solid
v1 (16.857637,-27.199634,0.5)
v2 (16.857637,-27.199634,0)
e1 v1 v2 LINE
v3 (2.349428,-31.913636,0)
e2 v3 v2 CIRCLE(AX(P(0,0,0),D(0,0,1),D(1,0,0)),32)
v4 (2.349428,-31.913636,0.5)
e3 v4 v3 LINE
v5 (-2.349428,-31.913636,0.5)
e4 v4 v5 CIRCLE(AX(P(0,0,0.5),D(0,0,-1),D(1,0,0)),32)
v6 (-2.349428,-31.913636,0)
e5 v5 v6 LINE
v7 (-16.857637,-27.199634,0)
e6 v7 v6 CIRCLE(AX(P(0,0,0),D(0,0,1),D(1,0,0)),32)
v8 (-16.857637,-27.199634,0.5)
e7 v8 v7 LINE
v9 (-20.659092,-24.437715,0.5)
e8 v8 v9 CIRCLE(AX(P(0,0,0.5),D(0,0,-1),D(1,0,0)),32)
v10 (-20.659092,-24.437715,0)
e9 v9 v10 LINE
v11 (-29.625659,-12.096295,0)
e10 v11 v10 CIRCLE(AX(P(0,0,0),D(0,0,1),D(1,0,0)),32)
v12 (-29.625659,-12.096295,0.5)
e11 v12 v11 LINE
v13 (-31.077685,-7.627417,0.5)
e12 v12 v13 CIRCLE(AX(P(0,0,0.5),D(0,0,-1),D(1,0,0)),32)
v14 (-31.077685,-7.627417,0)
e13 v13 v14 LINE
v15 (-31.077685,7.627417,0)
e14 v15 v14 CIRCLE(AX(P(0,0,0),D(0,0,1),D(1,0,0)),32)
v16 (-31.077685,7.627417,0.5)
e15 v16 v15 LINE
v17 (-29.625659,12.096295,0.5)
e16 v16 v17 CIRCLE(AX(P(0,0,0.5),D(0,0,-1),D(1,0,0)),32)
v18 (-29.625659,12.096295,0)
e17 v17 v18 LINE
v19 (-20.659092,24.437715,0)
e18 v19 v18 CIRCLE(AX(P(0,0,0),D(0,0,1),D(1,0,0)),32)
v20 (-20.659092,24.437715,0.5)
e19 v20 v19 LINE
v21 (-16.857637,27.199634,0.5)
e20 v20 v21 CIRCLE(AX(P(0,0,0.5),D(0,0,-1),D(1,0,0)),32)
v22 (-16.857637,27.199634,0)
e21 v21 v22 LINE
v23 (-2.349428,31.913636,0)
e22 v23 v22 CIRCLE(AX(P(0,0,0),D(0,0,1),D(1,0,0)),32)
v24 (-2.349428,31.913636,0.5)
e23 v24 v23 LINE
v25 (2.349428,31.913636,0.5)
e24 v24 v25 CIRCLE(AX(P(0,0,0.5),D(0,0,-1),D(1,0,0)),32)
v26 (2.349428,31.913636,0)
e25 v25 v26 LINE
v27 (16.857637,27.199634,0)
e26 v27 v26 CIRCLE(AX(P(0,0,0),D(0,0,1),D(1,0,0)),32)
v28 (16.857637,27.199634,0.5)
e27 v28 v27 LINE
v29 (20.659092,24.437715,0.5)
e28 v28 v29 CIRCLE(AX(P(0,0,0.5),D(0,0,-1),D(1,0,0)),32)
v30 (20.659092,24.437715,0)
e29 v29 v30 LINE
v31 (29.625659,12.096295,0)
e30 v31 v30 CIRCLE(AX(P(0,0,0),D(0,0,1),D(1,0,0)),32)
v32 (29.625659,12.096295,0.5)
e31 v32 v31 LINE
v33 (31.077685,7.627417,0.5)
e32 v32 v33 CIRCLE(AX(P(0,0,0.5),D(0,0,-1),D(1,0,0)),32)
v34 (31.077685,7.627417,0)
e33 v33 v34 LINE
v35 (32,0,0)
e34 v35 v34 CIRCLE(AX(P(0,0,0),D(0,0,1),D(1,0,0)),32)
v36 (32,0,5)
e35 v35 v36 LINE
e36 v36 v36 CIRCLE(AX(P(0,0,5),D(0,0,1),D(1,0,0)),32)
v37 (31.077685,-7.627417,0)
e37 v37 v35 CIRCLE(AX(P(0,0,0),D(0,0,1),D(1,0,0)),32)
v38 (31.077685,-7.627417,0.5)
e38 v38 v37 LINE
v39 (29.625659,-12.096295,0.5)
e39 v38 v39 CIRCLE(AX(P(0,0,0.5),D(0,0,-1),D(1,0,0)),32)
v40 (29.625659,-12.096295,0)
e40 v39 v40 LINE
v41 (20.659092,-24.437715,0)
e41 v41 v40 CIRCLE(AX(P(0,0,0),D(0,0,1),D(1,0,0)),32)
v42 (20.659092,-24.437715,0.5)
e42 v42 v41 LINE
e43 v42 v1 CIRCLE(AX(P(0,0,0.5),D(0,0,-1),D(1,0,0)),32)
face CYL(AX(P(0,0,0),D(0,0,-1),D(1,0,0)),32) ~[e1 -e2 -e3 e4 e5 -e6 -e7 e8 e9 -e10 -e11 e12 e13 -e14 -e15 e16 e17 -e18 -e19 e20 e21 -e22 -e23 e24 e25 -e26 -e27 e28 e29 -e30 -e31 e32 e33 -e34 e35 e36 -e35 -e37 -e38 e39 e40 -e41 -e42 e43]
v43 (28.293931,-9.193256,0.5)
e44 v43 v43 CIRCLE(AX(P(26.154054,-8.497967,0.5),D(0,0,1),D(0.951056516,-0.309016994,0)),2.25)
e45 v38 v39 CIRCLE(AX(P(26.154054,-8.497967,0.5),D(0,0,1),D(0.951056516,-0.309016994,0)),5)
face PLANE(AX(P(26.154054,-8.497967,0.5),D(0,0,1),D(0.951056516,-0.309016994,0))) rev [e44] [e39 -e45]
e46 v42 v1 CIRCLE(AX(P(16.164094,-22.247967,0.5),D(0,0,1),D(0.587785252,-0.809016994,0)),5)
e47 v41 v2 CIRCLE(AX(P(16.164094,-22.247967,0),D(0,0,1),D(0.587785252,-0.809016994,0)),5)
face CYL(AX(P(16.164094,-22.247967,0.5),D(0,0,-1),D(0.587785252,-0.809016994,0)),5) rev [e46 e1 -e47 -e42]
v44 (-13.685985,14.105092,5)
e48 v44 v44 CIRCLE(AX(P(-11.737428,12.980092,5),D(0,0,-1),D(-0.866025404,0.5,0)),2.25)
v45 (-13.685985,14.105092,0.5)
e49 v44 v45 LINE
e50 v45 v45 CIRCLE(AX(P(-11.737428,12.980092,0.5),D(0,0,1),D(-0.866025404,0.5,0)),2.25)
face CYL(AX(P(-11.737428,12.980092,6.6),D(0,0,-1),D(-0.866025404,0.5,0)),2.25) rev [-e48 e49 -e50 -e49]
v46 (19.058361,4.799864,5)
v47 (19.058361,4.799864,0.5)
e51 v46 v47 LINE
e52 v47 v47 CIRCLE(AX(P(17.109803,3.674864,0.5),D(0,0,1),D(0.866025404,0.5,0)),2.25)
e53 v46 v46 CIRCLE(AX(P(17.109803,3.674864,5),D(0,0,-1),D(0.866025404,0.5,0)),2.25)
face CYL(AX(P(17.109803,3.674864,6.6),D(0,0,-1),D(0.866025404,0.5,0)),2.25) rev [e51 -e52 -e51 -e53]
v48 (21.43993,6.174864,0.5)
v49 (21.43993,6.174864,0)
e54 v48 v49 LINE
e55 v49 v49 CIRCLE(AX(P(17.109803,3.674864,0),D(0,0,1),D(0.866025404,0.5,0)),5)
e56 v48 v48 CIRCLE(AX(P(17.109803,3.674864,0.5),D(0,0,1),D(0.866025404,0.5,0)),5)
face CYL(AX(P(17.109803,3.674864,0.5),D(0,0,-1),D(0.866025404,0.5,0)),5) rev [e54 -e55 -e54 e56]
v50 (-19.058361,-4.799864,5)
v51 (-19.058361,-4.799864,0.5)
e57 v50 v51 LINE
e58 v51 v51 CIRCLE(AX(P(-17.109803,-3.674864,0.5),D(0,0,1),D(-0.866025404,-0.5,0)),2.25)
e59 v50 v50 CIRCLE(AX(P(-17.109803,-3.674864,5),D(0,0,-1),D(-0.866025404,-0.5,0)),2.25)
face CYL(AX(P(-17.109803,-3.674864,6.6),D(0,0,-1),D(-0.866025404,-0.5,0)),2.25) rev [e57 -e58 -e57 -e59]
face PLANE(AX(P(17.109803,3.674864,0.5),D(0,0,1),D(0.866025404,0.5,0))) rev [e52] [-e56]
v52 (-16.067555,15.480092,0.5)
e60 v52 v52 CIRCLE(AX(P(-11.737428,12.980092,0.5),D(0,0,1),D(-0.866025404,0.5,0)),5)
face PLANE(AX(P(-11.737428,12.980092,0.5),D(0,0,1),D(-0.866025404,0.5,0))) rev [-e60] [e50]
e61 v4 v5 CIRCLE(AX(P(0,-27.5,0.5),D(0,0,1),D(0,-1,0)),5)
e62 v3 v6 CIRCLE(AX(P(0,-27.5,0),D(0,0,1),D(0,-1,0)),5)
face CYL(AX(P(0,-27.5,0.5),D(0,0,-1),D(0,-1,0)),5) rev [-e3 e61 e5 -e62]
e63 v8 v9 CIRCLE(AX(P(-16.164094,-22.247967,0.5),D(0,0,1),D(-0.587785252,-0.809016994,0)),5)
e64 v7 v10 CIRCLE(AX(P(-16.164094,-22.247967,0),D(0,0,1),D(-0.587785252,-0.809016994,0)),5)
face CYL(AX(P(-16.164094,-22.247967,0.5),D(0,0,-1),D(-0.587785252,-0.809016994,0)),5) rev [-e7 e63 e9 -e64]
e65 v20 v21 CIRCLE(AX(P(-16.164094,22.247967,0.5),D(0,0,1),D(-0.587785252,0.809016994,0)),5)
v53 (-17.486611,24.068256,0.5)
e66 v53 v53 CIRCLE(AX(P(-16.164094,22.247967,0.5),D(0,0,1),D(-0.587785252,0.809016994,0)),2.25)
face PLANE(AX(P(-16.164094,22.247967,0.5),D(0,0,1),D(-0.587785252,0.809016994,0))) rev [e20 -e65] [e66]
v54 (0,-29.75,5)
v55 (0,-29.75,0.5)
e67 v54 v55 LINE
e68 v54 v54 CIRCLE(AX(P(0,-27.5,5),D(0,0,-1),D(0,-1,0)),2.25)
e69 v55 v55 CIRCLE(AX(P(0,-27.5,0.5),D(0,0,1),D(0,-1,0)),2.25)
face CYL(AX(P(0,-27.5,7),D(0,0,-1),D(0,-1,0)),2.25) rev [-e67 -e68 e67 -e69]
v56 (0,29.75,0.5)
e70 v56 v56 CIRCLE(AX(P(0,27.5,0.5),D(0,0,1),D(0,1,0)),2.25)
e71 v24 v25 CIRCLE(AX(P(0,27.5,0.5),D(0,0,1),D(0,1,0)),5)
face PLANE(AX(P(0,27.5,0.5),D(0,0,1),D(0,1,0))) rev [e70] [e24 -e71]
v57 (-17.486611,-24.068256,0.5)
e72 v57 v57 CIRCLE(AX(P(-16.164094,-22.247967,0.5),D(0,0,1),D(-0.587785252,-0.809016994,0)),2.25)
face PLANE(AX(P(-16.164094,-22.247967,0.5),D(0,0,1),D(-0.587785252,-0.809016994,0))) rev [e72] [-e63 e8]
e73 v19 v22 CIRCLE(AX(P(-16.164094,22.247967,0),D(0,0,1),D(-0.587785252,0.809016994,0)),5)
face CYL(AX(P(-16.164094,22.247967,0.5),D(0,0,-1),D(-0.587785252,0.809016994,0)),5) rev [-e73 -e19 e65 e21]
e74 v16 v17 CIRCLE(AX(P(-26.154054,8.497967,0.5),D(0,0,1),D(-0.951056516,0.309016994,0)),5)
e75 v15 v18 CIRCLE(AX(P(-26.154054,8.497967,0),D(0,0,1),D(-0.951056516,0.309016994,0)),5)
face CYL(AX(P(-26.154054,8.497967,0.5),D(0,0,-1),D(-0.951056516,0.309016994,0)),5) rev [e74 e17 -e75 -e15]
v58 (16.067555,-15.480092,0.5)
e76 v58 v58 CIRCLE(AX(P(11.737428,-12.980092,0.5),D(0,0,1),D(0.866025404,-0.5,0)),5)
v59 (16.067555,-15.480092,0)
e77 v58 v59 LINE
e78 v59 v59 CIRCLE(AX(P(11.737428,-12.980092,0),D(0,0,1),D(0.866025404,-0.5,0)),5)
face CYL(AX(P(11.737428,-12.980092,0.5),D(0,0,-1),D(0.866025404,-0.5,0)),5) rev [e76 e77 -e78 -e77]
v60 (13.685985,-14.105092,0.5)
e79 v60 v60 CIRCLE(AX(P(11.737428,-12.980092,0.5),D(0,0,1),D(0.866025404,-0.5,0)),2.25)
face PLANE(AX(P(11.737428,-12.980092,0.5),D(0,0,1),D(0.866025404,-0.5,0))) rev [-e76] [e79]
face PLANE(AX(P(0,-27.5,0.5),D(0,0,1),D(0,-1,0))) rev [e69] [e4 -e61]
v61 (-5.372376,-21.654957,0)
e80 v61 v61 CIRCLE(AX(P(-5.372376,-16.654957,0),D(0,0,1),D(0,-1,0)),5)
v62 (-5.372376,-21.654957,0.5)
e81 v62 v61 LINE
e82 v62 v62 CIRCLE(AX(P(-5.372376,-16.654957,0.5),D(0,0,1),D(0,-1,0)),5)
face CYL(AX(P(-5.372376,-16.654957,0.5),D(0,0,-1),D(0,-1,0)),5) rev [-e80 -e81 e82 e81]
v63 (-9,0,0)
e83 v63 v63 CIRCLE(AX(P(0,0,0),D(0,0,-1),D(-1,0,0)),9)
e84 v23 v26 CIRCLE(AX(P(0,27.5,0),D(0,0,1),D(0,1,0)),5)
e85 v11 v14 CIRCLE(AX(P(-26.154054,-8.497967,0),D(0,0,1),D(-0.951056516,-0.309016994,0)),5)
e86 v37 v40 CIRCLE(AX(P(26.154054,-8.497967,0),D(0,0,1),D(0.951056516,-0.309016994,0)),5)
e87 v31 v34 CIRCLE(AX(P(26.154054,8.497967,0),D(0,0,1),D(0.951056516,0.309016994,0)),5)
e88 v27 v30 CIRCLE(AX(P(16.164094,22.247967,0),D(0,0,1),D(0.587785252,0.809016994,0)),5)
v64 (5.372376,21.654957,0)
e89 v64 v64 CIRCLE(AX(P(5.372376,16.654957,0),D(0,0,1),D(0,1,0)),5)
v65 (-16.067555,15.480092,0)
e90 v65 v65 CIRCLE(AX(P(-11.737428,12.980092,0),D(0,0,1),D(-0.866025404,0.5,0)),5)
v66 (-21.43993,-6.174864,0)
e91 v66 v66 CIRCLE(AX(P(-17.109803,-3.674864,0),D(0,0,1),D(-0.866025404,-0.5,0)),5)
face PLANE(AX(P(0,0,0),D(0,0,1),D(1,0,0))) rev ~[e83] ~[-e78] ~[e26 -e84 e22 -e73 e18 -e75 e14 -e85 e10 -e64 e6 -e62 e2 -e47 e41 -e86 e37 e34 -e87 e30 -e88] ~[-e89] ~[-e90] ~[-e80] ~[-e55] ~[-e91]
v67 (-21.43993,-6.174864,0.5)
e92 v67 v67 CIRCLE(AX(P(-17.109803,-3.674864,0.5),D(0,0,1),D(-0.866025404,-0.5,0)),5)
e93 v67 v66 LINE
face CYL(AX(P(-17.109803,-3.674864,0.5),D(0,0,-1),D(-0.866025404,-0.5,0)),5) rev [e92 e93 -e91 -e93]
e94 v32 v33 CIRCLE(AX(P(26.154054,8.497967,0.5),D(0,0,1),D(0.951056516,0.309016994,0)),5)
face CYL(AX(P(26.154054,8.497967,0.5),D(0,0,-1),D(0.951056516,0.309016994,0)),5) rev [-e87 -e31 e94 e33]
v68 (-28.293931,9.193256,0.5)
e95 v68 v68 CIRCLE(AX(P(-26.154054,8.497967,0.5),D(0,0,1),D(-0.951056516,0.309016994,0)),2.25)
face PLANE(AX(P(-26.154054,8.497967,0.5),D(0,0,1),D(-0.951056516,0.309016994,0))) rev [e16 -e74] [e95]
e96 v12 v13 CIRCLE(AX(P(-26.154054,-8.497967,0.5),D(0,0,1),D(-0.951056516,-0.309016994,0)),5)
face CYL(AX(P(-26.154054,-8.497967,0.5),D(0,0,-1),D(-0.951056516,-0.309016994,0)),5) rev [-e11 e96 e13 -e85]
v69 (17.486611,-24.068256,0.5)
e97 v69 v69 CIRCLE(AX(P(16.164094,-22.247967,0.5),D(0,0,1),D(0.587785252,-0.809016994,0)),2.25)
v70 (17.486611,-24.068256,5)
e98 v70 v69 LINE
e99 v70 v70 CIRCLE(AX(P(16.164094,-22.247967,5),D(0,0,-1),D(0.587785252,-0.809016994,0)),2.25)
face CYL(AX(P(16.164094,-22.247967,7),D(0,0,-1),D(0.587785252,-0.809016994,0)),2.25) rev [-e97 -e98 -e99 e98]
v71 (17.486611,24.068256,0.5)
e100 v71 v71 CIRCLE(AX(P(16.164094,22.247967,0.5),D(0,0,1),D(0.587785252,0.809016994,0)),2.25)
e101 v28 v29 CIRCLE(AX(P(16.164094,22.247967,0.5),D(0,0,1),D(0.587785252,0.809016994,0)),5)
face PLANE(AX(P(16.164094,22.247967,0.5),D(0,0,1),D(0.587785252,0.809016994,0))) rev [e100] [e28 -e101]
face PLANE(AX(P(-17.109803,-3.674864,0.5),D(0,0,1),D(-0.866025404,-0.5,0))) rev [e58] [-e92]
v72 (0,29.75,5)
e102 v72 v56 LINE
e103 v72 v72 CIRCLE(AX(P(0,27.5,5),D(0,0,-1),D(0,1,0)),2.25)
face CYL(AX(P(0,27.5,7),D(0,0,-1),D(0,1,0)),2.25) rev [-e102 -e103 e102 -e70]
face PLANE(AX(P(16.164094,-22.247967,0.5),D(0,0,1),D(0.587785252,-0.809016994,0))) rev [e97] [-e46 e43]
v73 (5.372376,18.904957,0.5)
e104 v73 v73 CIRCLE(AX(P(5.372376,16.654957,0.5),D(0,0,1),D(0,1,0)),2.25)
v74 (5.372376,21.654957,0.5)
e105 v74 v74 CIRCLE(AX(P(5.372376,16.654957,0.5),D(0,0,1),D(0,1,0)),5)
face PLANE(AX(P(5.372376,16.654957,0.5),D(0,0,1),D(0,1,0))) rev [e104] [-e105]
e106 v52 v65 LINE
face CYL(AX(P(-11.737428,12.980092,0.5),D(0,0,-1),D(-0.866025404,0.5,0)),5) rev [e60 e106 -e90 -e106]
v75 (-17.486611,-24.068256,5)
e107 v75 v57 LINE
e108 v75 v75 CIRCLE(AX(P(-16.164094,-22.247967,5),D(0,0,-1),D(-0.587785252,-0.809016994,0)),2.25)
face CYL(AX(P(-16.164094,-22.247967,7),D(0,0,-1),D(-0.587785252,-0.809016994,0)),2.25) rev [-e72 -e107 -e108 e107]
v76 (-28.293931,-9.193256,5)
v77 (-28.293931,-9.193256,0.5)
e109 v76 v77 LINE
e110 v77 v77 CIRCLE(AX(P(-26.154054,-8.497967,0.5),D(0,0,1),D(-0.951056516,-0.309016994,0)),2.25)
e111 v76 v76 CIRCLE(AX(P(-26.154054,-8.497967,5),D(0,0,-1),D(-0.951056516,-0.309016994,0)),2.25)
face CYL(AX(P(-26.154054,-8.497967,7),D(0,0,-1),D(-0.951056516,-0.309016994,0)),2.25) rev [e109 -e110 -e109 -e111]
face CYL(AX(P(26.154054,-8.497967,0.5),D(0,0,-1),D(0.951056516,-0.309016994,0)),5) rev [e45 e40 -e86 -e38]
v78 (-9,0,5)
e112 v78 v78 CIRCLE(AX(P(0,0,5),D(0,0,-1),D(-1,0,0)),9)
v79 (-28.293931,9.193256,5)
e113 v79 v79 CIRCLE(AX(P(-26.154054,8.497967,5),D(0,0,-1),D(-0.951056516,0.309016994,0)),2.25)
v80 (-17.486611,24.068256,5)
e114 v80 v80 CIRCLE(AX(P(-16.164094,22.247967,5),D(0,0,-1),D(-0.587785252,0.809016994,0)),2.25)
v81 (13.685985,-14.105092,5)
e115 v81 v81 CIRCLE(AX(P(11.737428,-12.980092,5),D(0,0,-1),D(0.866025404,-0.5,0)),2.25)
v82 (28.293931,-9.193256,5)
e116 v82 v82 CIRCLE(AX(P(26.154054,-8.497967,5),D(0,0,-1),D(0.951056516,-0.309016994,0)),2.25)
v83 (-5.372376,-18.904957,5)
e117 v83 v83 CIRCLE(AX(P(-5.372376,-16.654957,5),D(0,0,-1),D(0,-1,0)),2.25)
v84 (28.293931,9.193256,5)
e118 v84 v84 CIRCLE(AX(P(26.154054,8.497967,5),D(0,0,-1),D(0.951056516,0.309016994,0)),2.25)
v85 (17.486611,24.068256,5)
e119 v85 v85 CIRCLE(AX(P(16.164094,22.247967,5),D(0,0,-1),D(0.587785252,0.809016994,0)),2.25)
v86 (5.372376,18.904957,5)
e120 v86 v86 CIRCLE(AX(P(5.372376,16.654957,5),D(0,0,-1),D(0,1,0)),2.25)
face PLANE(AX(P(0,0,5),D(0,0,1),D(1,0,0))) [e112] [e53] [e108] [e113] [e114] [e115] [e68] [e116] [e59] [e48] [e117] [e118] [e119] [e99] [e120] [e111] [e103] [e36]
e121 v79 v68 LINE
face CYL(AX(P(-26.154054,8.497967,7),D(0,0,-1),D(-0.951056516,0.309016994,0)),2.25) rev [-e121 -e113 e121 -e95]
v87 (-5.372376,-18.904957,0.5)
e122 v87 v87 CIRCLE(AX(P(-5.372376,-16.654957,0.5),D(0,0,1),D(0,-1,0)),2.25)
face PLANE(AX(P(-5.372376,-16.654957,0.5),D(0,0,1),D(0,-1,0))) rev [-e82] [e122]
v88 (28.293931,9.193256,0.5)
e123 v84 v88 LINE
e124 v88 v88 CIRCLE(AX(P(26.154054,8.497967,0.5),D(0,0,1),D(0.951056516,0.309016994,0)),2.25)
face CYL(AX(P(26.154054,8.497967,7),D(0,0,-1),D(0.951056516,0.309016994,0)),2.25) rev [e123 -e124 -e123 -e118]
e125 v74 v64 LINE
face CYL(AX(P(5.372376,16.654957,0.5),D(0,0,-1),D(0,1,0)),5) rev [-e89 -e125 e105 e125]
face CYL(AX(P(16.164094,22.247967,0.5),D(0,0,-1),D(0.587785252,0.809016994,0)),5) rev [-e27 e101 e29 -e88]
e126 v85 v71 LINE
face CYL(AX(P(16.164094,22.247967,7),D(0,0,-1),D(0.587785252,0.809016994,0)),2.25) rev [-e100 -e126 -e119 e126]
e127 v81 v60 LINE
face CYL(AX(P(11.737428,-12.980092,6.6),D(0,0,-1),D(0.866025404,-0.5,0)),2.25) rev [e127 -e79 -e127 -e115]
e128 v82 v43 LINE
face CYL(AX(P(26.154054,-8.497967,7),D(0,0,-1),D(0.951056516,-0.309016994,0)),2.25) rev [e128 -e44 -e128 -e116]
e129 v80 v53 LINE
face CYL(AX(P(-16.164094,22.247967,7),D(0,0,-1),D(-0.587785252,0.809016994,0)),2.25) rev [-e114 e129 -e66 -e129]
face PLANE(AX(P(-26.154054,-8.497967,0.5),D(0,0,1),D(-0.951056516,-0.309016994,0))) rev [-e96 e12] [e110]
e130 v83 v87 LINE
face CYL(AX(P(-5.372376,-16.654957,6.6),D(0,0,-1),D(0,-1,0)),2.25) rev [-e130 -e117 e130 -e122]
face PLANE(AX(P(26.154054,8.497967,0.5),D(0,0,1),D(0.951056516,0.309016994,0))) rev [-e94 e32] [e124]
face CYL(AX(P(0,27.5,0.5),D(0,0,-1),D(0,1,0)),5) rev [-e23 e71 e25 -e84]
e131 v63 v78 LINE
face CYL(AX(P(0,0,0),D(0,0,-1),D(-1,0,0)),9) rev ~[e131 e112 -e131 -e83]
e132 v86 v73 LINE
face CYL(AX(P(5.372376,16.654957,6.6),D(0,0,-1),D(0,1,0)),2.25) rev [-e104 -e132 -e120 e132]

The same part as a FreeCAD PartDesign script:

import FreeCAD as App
import Part
import Sketcher
from FreeCAD import Vector
Q = App.Units.Quantity

doc = App.newDocument("Part")
body = doc.addObject("PartDesign::Body", "Body")

# Sketch on XY plane
sketch1 = body.newObject("Sketcher::SketchObject", "Sketch")
sketch1.AttachmentSupport = (doc.getObject("XY_Plane"), [""])
sketch1.MapMode = "FlatFace"
sketch1.addGeometry(Part.Circle(Vector(0, 0, 0), Vector(0, 0, 1), 32), False)
sketch1.addConstraint(Sketcher.Constraint("Coincident", 0, 3, -1, 1))
sketch1.addConstraint(Sketcher.Constraint("Diameter", 0, 64.0))
pad1 = body.newObject("PartDesign::Pad", "Pad")
pad1.Profile = sketch1
pad1.Length = 5

# Sketch on XY plane
sketch2 = body.newObject("Sketcher::SketchObject", "Sketch001")
sketch2.AttachmentSupport = (doc.getObject("XY_Plane"), [""])
sketch2.MapMode = "FlatFace"
sketch2.addGeometry(Part.Circle(Vector(0, 0, 0), Vector(0, 0, 1), 9), False)
sketch2.addConstraint(Sketcher.Constraint("Coincident", 0, 3, -1, 1))
sketch2.addConstraint(Sketcher.Constraint("Diameter", 0, 18.0))
pocket1 = body.newObject("PartDesign::Pocket", "Pocket")
pocket1.Profile = sketch2
pocket1.Type = "UpToFirst"
pocket1.Reversed = True

# Sketch on YZ plane
sketch3 = body.newObject("Sketcher::SketchObject", "Sketch002")
sketch3.AttachmentSupport = (doc.getObject("YZ_Plane"), [""])
sketch3.MapMode = "FlatFace"
sketch3.addGeometry(Part.LineSegment(Vector(27.5, 8.4, 0), Vector(27.5, 0, 0)), False)
sketch3.addGeometry(Part.LineSegment(Vector(27.5, 0, 0), Vector(32.5, 0, 0)), False)
sketch3.addGeometry(Part.LineSegment(Vector(32.5, 0, 0), Vector(32.5, 0.5, 0)), False)
sketch3.addGeometry(Part.LineSegment(Vector(32.5, 0.5, 0), Vector(29.8, 0.5, 0)), False)
sketch3.addGeometry(Part.LineSegment(Vector(29.8, 0.5, 0), Vector(29.8, 7, 0)), False)
sketch3.addGeometry(Part.LineSegment(Vector(29.8, 7, 0), Vector(27.5, 8.4, 0)), False)
sketch3.addGeometry(Part.LineSegment(Vector(27.5, 0, 0), Vector(27.5, 8.4, 0)), True)  # axis
sketch3.addConstraint(Sketcher.Constraint("Coincident", 0, 2, 1, 1))
sketch3.addConstraint(Sketcher.Constraint("Coincident", 1, 2, 2, 1))
sketch3.addConstraint(Sketcher.Constraint("Coincident", 2, 2, 3, 1))
sketch3.addConstraint(Sketcher.Constraint("Coincident", 3, 2, 4, 1))
sketch3.addConstraint(Sketcher.Constraint("Coincident", 4, 2, 5, 1))
sketch3.addConstraint(Sketcher.Constraint("Coincident", 5, 2, 0, 1))
sketch3.addConstraint(Sketcher.Constraint("Vertical", 0))
sketch3.addConstraint(Sketcher.Constraint("Horizontal", 1))
sketch3.addConstraint(Sketcher.Constraint("Vertical", 2))
sketch3.addConstraint(Sketcher.Constraint("Horizontal", 3))
sketch3.addConstraint(Sketcher.Constraint("Vertical", 4))
sketch3.addConstraint(Sketcher.Constraint("Vertical", 6))
sketch3.addConstraint(Sketcher.Constraint("Coincident", 6, 1, 0, 2))
sketch3.addConstraint(Sketcher.Constraint("PointOnObject", 0, 2, -1))
sketch3.addConstraint(Sketcher.Constraint("Equal", 0, 6))
sketch3.addConstraint(Sketcher.Constraint("DistanceX", 1, 1, 1, 2, 5.0))
sketch3.addConstraint(Sketcher.Constraint("Angle", 5, Q("149 deg")))
sketch3.addConstraint(Sketcher.Constraint("DistanceY", 2, 1, 2, 2, 0.5))
sketch3.addConstraint(Sketcher.Constraint("DistanceY", 4, 1, 4, 2, 6.5))
sketch3.addConstraint(Sketcher.Constraint("DistanceX", 3, 2, 3, 1, 2.75))
sketch3.addConstraint(Sketcher.Constraint("DistanceX", -1, 1, 0, 2, 27.5))
groove = body.newObject("PartDesign::Groove", "Groove")
groove.Profile = sketch3
groove.ReferenceAxis = (sketch3, ["Axis0"])
groove.Angle = 360
doc.recompute()

polarpattern = body.newObject("PartDesign::PolarPattern", "PolarPattern")
polarpattern.Originals = [groove]
polarpattern.Axis = (doc.getObject("Z_Axis"), [""])
polarpattern.Angle = 360
polarpattern.Occurrences = 10
body.Tip = polarpattern

# Sketch on YZ plane
sketch4 = body.newObject("Sketcher::SketchObject", "Sketch003")
sketch4.AttachmentSupport = (doc.getObject("YZ_Plane"), [""])
sketch4.MapMode = "FlatFace"
sketch4.AttachmentOffset = App.Placement(Vector(0, 0, 5.372376), App.Rotation())
sketch4.addGeometry(Part.LineSegment(Vector(16.7, 8, 0), Vector(16.7, 0, 0)), False)
sketch4.addGeometry(Part.LineSegment(Vector(16.7, 0, 0), Vector(21.7, 0, 0)), False)
sketch4.addGeometry(Part.LineSegment(Vector(21.7, 0, 0), Vector(21.7, 0.5, 0)), False)
sketch4.addGeometry(Part.LineSegment(Vector(21.7, 0.5, 0), Vector(18.9, 0.5, 0)), False)
sketch4.addGeometry(Part.LineSegment(Vector(18.9, 0.5, 0), Vector(18.9, 6.6, 0)), False)
sketch4.addGeometry(Part.LineSegment(Vector(18.9, 6.6, 0), Vector(16.7, 8, 0)), False)
sketch4.addGeometry(Part.LineSegment(Vector(16.7, 0, 0), Vector(16.7, 8, 0)), True)  # axis
sketch4.addConstraint(Sketcher.Constraint("Coincident", 0, 2, 1, 1))
sketch4.addConstraint(Sketcher.Constraint("Coincident", 1, 2, 2, 1))
sketch4.addConstraint(Sketcher.Constraint("Coincident", 2, 2, 3, 1))
sketch4.addConstraint(Sketcher.Constraint("Coincident", 3, 2, 4, 1))
sketch4.addConstraint(Sketcher.Constraint("Coincident", 4, 2, 5, 1))
sketch4.addConstraint(Sketcher.Constraint("Coincident", 5, 2, 0, 1))
sketch4.addConstraint(Sketcher.Constraint("Vertical", 0))
sketch4.addConstraint(Sketcher.Constraint("Horizontal", 1))
sketch4.addConstraint(Sketcher.Constraint("Vertical", 2))
sketch4.addConstraint(Sketcher.Constraint("Horizontal", 3))
sketch4.addConstraint(Sketcher.Constraint("Vertical", 4))
sketch4.addConstraint(Sketcher.Constraint("Vertical", 6))
sketch4.addConstraint(Sketcher.Constraint("Coincident", 6, 1, 0, 2))
sketch4.addConstraint(Sketcher.Constraint("PointOnObject", 0, 2, -1))
sketch4.addConstraint(Sketcher.Constraint("Equal", 0, 6))
sketch4.addConstraint(Sketcher.Constraint("DistanceX", 1, 1, 1, 2, 5.0))
sketch4.addConstraint(Sketcher.Constraint("Angle", 5, Q("149 deg")))
sketch4.addConstraint(Sketcher.Constraint("DistanceY", 2, 1, 2, 2, 0.5))
sketch4.addConstraint(Sketcher.Constraint("DistanceY", 4, 1, 4, 2, 6.1))
sketch4.addConstraint(Sketcher.Constraint("DistanceX", 3, 2, 3, 1, 2.75))
sketch4.addConstraint(Sketcher.Constraint("DistanceX", -1, 1, 0, 2, 16.654957))
groove2 = body.newObject("PartDesign::Groove", "Groove001")
groove2.Profile = sketch4
groove2.ReferenceAxis = (sketch4, ["Axis0"])
groove2.Angle = 360
doc.recompute()

polarpattern2 = body.newObject("PartDesign::PolarPattern", "PolarPattern001")
polarpattern2.Originals = [groove2]
polarpattern2.Axis = (doc.getObject("Z_Axis"), [""])
polarpattern2.Angle = 360
polarpattern2.Occurrences = 6
body.Tip = polarpattern2

doc.recompute()
